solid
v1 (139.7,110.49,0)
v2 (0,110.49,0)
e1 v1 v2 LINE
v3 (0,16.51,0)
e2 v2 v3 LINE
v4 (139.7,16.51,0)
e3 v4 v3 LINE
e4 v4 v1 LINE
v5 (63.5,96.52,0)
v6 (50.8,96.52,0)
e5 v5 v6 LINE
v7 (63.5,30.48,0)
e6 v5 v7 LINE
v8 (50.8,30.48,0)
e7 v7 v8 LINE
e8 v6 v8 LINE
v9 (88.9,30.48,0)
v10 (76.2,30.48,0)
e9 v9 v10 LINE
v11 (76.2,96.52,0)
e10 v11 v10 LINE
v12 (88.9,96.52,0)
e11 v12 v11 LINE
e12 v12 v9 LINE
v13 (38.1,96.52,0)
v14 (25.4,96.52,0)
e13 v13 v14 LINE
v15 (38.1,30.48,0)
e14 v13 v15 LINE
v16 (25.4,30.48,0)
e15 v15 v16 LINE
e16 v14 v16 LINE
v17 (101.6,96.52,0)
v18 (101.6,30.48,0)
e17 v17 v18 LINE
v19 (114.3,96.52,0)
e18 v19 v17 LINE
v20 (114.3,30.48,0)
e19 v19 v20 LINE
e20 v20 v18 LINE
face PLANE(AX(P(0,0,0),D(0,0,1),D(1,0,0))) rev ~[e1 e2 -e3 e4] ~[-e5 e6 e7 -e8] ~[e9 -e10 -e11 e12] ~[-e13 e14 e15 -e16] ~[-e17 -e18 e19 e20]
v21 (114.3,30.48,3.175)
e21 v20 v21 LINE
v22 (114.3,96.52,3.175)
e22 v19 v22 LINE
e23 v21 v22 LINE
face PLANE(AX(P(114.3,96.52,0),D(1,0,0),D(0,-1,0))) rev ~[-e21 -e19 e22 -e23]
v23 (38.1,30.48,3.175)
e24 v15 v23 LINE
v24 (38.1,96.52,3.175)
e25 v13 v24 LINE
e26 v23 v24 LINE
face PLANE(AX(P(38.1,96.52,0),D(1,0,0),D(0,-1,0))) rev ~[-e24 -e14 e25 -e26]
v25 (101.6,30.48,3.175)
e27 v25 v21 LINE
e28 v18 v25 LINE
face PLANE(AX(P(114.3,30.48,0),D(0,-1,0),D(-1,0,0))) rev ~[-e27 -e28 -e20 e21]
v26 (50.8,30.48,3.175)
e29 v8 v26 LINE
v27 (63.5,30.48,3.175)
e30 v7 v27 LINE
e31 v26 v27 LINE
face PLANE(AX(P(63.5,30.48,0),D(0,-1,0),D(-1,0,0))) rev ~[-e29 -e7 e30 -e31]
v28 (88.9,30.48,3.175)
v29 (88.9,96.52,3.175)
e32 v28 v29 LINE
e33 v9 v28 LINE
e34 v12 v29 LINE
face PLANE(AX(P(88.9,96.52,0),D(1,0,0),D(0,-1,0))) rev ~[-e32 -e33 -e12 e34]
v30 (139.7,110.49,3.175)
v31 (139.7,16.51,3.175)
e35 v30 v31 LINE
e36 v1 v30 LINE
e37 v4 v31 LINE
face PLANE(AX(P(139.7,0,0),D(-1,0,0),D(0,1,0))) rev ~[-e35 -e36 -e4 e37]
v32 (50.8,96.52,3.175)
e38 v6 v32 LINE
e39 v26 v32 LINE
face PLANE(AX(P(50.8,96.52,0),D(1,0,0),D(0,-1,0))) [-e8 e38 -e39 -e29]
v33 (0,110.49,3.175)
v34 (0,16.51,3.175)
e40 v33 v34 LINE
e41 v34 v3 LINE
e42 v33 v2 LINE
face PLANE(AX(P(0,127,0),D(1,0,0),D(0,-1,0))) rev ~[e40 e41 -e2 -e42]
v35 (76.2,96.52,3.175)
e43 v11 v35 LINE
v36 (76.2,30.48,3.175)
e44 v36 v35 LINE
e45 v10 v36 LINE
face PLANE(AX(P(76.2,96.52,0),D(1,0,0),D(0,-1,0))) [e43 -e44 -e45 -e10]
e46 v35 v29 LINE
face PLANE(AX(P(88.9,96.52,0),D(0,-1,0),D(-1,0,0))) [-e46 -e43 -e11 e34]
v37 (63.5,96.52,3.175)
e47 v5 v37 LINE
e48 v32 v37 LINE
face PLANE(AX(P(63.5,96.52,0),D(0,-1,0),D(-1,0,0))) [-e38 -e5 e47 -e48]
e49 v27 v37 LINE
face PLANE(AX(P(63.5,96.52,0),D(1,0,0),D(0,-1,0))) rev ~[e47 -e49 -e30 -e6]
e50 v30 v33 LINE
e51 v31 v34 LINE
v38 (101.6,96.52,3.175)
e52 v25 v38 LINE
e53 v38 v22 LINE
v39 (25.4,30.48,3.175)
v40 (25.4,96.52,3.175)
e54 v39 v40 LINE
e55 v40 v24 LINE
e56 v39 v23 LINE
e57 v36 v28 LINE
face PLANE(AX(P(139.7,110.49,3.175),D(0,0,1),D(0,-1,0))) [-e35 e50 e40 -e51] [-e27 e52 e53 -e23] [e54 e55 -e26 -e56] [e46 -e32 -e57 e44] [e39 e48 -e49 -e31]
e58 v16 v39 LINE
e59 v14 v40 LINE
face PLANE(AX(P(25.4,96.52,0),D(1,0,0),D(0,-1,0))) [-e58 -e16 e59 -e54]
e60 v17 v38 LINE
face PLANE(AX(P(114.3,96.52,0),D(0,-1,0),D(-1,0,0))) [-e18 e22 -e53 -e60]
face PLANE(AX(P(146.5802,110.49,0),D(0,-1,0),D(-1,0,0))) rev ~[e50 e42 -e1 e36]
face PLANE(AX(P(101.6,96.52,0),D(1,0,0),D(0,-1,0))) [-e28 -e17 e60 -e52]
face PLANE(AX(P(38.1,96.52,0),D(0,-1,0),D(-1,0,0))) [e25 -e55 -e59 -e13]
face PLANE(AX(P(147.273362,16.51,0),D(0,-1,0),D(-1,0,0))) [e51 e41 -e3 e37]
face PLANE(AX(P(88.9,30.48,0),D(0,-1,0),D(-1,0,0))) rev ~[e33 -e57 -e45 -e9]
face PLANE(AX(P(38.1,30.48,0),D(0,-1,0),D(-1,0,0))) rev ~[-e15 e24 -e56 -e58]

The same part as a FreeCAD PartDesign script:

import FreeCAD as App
import Part
import Sketcher
from FreeCAD import Vector
Q = App.Units.Quantity

doc = App.newDocument("Part")
body = doc.addObject("PartDesign::Body", "Body")

# Sketch on XY plane
sketch1 = doc.addObject("Sketcher::SketchObject", "Sketch")
body.addObject(sketch1)
sketch1.AttachmentSupport = (doc.XY_Plane, [""])
sketch1.MapMode = "FlatFace"
sketch1.addGeometry(Part.LineSegment(Vector(0, 127, 0), Vector(0, 0, 0)), False)
sketch1.addGeometry(Part.LineSegment(Vector(0, 0, 0), Vector(140, 0, 0)), False)
sketch1.addGeometry(Part.LineSegment(Vector(140, 0, 0), Vector(140, 127, 0)), False)
sketch1.addGeometry(Part.LineSegment(Vector(140, 127, 0), Vector(0, 127, 0)), False)
sketch1.addConstraint(Sketcher.Constraint("Coincident", 0, 2, 1, 1))
sketch1.addConstraint(Sketcher.Constraint("Coincident", 1, 2, 2, 1))
sketch1.addConstraint(Sketcher.Constraint("Coincident", 2, 2, 3, 1))
sketch1.addConstraint(Sketcher.Constraint("Coincident", 3, 2, 0, 1))
sketch1.addConstraint(Sketcher.Constraint("Vertical", 0))
sketch1.addConstraint(Sketcher.Constraint("Horizontal", 1))
sketch1.addConstraint(Sketcher.Constraint("Vertical", 2))
sketch1.addConstraint(Sketcher.Constraint("Horizontal", 3))
sketch1.addConstraint(Sketcher.Constraint("Coincident", 0, 2, -1, 1))
sketch1.addConstraint(Sketcher.Constraint("DistanceY", 0, 2, 0, 1, Q("5 in")))
sketch1.addConstraint(Sketcher.Constraint("DistanceX", 1, 1, 1, 2, Q("5.5 in")))
pad1 = doc.addObject("PartDesign::Pad", "Pad")
body.addObject(pad1)
pad1.Profile = sketch1
pad1.Length = Q("0.125 in")

# Sketch on XY plane
sketch2 = doc.addObject("Sketcher::SketchObject", "Sketch001")
body.addObject(sketch2)
sketch2.AttachmentSupport = (doc.XY_Plane, [""])
sketch2.MapMode = "FlatFace"
sketch2.AttachmentOffset = App.Placement(Vector(0, 0, 0.125 * 25.4), App.Rotation())
sketch2.addGeometry(Part.LineSegment(Vector(0, 0, 0), Vector(140, 0, 0)), False)
sketch2.addGeometry(Part.LineSegment(Vector(140, 0, 0), Vector(140, 127, 0)), False)
sketch2.addGeometry(Part.LineSegment(Vector(140, 127, 0), Vector(0, 127, 0)), False)
sketch2.addGeometry(Part.LineSegment(Vector(0, 127, 0), Vector(0, 0, 0)), False)
sketch2.addGeometry(Part.LineSegment(Vector(19, 19, 0), Vector(19, 108, 0)), False)
sketch2.addGeometry(Part.LineSegment(Vector(19, 108, 0), Vector(121, 108, 0)), False)
sketch2.addGeometry(Part.LineSegment(Vector(121, 108, 0), Vector(121, 19, 0)), False)
sketch2.addGeometry(Part.LineSegment(Vector(121, 19, 0), Vector(19, 19, 0)), False)
sketch2.addConstraint(Sketcher.Constraint("Coincident", 0, 2, 1, 1))
sketch2.addConstraint(Sketcher.Constraint("Coincident", 1, 2, 2, 1))
sketch2.addConstraint(Sketcher.Constraint("Coincident", 2, 2, 3, 1))
sketch2.addConstraint(Sketcher.Constraint("Coincident", 3, 2, 0, 1))
sketch2.addConstraint(Sketcher.Constraint("Coincident", 4, 2, 5, 1))
sketch2.addConstraint(Sketcher.Constraint("Coincident", 5, 2, 6, 1))
sketch2.addConstraint(Sketcher.Constraint("Coincident", 6, 2, 7, 1))
sketch2.addConstraint(Sketcher.Constraint("Coincident", 7, 2, 4, 1))
sketch2.addConstraint(Sketcher.Constraint("Horizontal", 0))
sketch2.addConstraint(Sketcher.Constraint("Vertical", 1))
sketch2.addConstraint(Sketcher.Constraint("Horizontal", 2))
sketch2.addConstraint(Sketcher.Constraint("Vertical", 3))
sketch2.addConstraint(Sketcher.Constraint("Vertical", 4))
sketch2.addConstraint(Sketcher.Constraint("Horizontal", 5))
sketch2.addConstraint(Sketcher.Constraint("Vertical", 6))
sketch2.addConstraint(Sketcher.Constraint("Horizontal", 7))
sketch2.addConstraint(Sketcher.Constraint("Coincident", 3, 2, -1, 1))
sketch2.addConstraint(Sketcher.Constraint("DistanceX", 5, 1, 5, 2, Q("4 in")))
sketch2.addConstraint(Sketcher.Constraint("DistanceY", 1, 1, 1, 2, Q("5 in")))
sketch2.addConstraint(Sketcher.Constraint("DistanceX", -1, 1, 4, 2, Q("0.75 in")))
sketch2.addConstraint(Sketcher.Constraint("DistanceY", -1, 1, 6, 2, Q("0.75 in")))
sketch2.addConstraint(Sketcher.Constraint("DistanceY", 4, 2, 2, 2, Q("0.75 in")))
sketch2.addConstraint(Sketcher.Constraint("DistanceX", 5, 2, 1, 2, Q("0.75 in")))
pad2 = doc.addObject("PartDesign::Pad", "Pad001")
body.addObject(pad2)
pad2.Profile = sketch2
pad2.Length = Q("0.125 in")

# Sketch on XY plane
sketch3 = doc.addObject("Sketcher::SketchObject", "Sketch002")
body.addObject(sketch3)
sketch3.AttachmentSupport = (doc.XY_Plane, [""])
sketch3.MapMode = "FlatFace"
sketch3.addGeometry(Part.LineSegment(Vector(38, 30, 0), Vector(25, 30, 0)), False)
sketch3.addGeometry(Part.LineSegment(Vector(25, 30, 0), Vector(25, 97, 0)), False)
sketch3.addGeometry(Part.LineSegment(Vector(25, 97, 0), Vector(38, 97, 0)), False)
sketch3.addGeometry(Part.LineSegment(Vector(38, 97, 0), Vector(38, 30, 0)), False)
sketch3.addGeometry(Part.LineSegment(Vector(64, 30, 0), Vector(51, 30, 0)), False)
sketch3.addGeometry(Part.LineSegment(Vector(51, 30, 0), Vector(51, 97, 0)), False)
sketch3.addGeometry(Part.LineSegment(Vector(51, 97, 0), Vector(64, 97, 0)), False)
sketch3.addGeometry(Part.LineSegment(Vector(64, 97, 0), Vector(64, 30, 0)), False)
sketch3.addGeometry(Part.LineSegment(Vector(89, 30, 0), Vector(76, 30, 0)), False)
sketch3.addGeometry(Part.LineSegment(Vector(76, 30, 0), Vector(76, 97, 0)), False)
sketch3.addGeometry(Part.LineSegment(Vector(76, 97, 0), Vector(89, 97, 0)), False)
sketch3.addGeometry(Part.LineSegment(Vector(89, 97, 0), Vector(89, 30, 0)), False)
sketch3.addGeometry(Part.LineSegment(Vector(114, 30, 0), Vector(102, 30, 0)), False)
sketch3.addGeometry(Part.LineSegment(Vector(102, 30, 0), Vector(102, 97, 0)), False)
sketch3.addGeometry(Part.LineSegment(Vector(102, 97, 0), Vector(114, 97, 0)), False)
sketch3.addGeometry(Part.LineSegment(Vector(114, 97, 0), Vector(114, 30, 0)), False)
sketch3.addConstraint(Sketcher.Constraint("Coincident", 0, 2, 1, 1))
sketch3.addConstraint(Sketcher.Constraint("Coincident", 1, 2, 2, 1))
sketch3.addConstraint(Sketcher.Constraint("Coincident", 2, 2, 3, 1))
sketch3.addConstraint(Sketcher.Constraint("Coincident", 3, 2, 0, 1))
sketch3.addConstraint(Sketcher.Constraint("Coincident", 4, 2, 5, 1))
sketch3.addConstraint(Sketcher.Constraint("Coincident", 5, 2, 6, 1))
sketch3.addConstraint(Sketcher.Constraint("Coincident", 6, 2, 7, 1))
sketch3.addConstraint(Sketcher.Constraint("Coincident", 7, 2, 4, 1))
sketch3.addConstraint(Sketcher.Constraint("Coincident", 8, 2, 9, 1))
sketch3.addConstraint(Sketcher.Constraint("Coincident", 9, 2, 10, 1))
sketch3.addConstraint(Sketcher.Constraint("Coincident", 10, 2, 11, 1))
sketch3.addConstraint(Sketcher.Constraint("Coincident", 11, 2, 8, 1))
sketch3.addConstraint(Sketcher.Constraint("Coincident", 12, 2, 13, 1))
sketch3.addConstraint(Sketcher.Constraint("Coincident", 13, 2, 14, 1))
sketch3.addConstraint(Sketcher.Constraint("Coincident", 14, 2, 15, 1))
sketch3.addConstraint(Sketcher.Constraint("Coincident", 15, 2, 12, 1))
sketch3.addConstraint(Sketcher.Constraint("Horizontal", 0))
sketch3.addConstraint(Sketcher.Constraint("Vertical", 1))
sketch3.addConstraint(Sketcher.Constraint("Horizontal", 2))
sketch3.addConstraint(Sketcher.Constraint("Vertical", 3))
sketch3.addConstraint(Sketcher.Constraint("Horizontal", 4))
sketch3.addConstraint(Sketcher.Constraint("Vertical", 5))
sketch3.addConstraint(Sketcher.Constraint("Horizontal", 6))
sketch3.addConstraint(Sketcher.Constraint("Vertical", 7))
sketch3.addConstraint(Sketcher.Constraint("Horizontal", 8))
sketch3.addConstraint(Sketcher.Constraint("Vertical", 9))
sketch3.addConstraint(Sketcher.Constraint("Horizontal", 10))
sketch3.addConstraint(Sketcher.Constraint("Vertical", 11))
sketch3.addConstraint(Sketcher.Constraint("Horizontal", 12))
sketch3.addConstraint(Sketcher.Constraint("Vertical", 13))
sketch3.addConstraint(Sketcher.Constraint("Horizontal", 14))
sketch3.addConstraint(Sketcher.Constraint("Vertical", 15))
sketch3.addConstraint(Sketcher.Constraint("Horizontal", 3, 2, 4, 2))
sketch3.addConstraint(Sketcher.Constraint("Horizontal", 2, 2, 5, 2))
sketch3.addConstraint(Sketcher.Constraint("Horizontal", 7, 2, 8, 2))
sketch3.addConstraint(Sketcher.Constraint("Horizontal", 6, 2, 9, 2))
sketch3.addConstraint(Sketcher.Constraint("Horizontal", 11, 2, 12, 2))
sketch3.addConstraint(Sketcher.Constraint("Horizontal", 10, 2, 13, 2))
sketch3.addConstraint(Sketcher.Constraint("Equal", 2, 4))
sketch3.addConstraint(Sketcher.Constraint("Equal", 6, 8))
sketch3.addConstraint(Sketcher.Constraint("Equal", 10, 12))
sketch3.addConstraint(Sketcher.Constraint("DistanceX", 0, 2, 0, 1, Q("0.5 in")))
sketch3.addConstraint(Sketcher.Constraint("DistanceX", 3, 2, 4, 2, Q("0.5 in")))
sketch3.addConstraint(Sketcher.Constraint("DistanceX", 7, 2, 8, 2, Q("0.5 in")))
sketch3.addConstraint(Sketcher.Constraint("DistanceX", 11, 2, 12, 2, Q("0.5 in")))
sketch3.addConstraint(Sketcher.Constraint("DistanceY", 1, 1, 1, 2, Q("2.6 in")))
sketch3.addConstraint(Sketcher.Constraint("DistanceX", -1, 1, 0, 2, Q("1 in")))
sketch3.addConstraint(Sketcher.Constraint("DistanceY", -1, 1, 0, 2, Q("1.2 in")))
pocket1 = doc.addObject("PartDesign::Pocket", "Pocket")
body.addObject(pocket1)
pocket1.Profile = sketch3
pocket1.Type = "ThroughAll"
pocket1.Reversed = True

# Sketch on XY plane
sketch4 = doc.addObject("Sketcher::SketchObject", "Sketch003")
body.addObject(sketch4)
sketch4.AttachmentSupport = (doc.XY_Plane, [""])
sketch4.MapMode = "FlatFace"
sketch4.addGeometry(Part.LineSegment(Vector(-14, 127, 0), Vector(147, 127, 0)), False)
sketch4.addGeometry(Part.LineSegment(Vector(147, 127, 0), Vector(147, 110, 0)), False)
sketch4.addGeometry(Part.LineSegment(Vector(147, 110, 0), Vector(-12, 110, 0)), False)
sketch4.addGeometry(Part.LineSegment(Vector(-12, 110, 0), Vector(-14, 127, 0)), False)
sketch4.addGeometry(Part.LineSegment(Vector(146, 0, 0), Vector(-12, 0, 0)), False)
sketch4.addGeometry(Part.LineSegment(Vector(-12, 0, 0), Vector(-10, 17, 0)), False)
sketch4.addGeometry(Part.LineSegment(Vector(-10, 17, 0), Vector(147, 17, 0)), False)
sketch4.addGeometry(Part.LineSegment(Vector(147, 17, 0), Vector(146, 0, 0)), False)
sketch4.addConstraint(Sketcher.Constraint("Coincident", 0, 2, 1, 1))
sketch4.addConstraint(Sketcher.Constraint("Coincident", 1, 2, 2, 1))
sketch4.addConstraint(Sketcher.Constraint("Coincident", 2, 2, 3, 1))
sketch4.addConstraint(Sketcher.Constraint("Coincident", 3, 2, 0, 1))
sketch4.addConstraint(Sketcher.Constraint("Coincident", 4, 2, 5, 1))
sketch4.addConstraint(Sketcher.Constraint("Coincident", 5, 2, 6, 1))
sketch4.addConstraint(Sketcher.Constraint("Coincident", 6, 2, 7, 1))
sketch4.addConstraint(Sketcher.Constraint("Coincident", 7, 2, 4, 1))
sketch4.addConstraint(Sketcher.Constraint("Horizontal", 0))
sketch4.addConstraint(Sketcher.Constraint("Vertical", 1))
sketch4.addConstraint(Sketcher.Constraint("Horizontal", 2))
sketch4.addConstraint(Sketcher.Constraint("Horizontal", 4))
sketch4.addConstraint(Sketcher.Constraint("Horizontal", 6))
sketch4.addConstraint(Sketcher.Constraint("PointOnObject", 4, 2, -1))
sketch4.addConstraint(Sketcher.Constraint("DistanceY", -1, 1, 0, 2, Q("5 in")))
sketch4.addConstraint(Sketcher.Constraint("DistanceY", 1, 2, 1, 1, Q("0.65 in")))
sketch4.addConstraint(Sketcher.Constraint("DistanceY", -1, 1, 5, 2, Q("0.65 in")))
sketch4.addConstraint(Sketcher.Constraint("DistanceX", 4, 2, -1, 1, Q("0.49 in")))
sketch4.addConstraint(Sketcher.Constraint("Angle", 3, Q("96.671 deg")))
sketch4.addConstraint(Sketcher.Constraint("DistanceX", 2, 2, 2, 1, Q("6.2538 in")))
sketch4.addConstraint(Sketcher.Constraint("DistanceX", 6, 1, 6, 2, Q("6.1768 in")))
sketch4.addConstraint(Sketcher.Constraint("DistanceX", 4, 2, 4, 1, 158.3145))
sketch4.addConstraint(Sketcher.Constraint("DistanceX", 4, 2, 2, 2, Q("0.0071 in")))
sketch4.addConstraint(Sketcher.Constraint("DistanceX", 3, 2, 5, 2, Q("0.1803 in")))
pocket2 = doc.addObject("PartDesign::Pocket", "Pocket001")
body.addObject(pocket2)
pocket2.Profile = sketch4
pocket2.Type = "ThroughAll"
pocket2.Reversed = True

# Sketch on YZ plane
sketch5 = doc.addObject("Sketcher::SketchObject", "Sketch004")
body.addObject(sketch5)
sketch5.AttachmentSupport = (doc.YZ_Plane, [""])
sketch5.MapMode = "FlatFace"
sketch5.AttachmentOffset = App.Placement(Vector(0, 0, 5.5 * 25.4), App.Rotation())
sketch5.addGeometry(Part.LineSegment(Vector(110.5, 6.3, 0), Vector(-1159.5, 6.3, 0)), False)
sketch5.addGeometry(Part.LineSegment(Vector(-1159.5, 6.3, 0), Vector(-1159.5, 3.2, 0)), False)
sketch5.addGeometry(Part.LineSegment(Vector(-1159.5, 3.2, 0), Vector(110.5, 3.2, 0)), False)
sketch5.addGeometry(Part.LineSegment(Vector(110.5, 3.2, 0), Vector(110.5, 6.3, 0)), False)
sketch5.addConstraint(Sketcher.Constraint("Coincident", 0, 2, 1, 1))
sketch5.addConstraint(Sketcher.Constraint("Coincident", 1, 2, 2, 1))
sketch5.addConstraint(Sketcher.Constraint("Coincident", 2, 2, 3, 1))
sketch5.addConstraint(Sketcher.Constraint("Coincident", 3, 2, 0, 1))
sketch5.addConstraint(Sketcher.Constraint("Horizontal", 0))
sketch5.addConstraint(Sketcher.Constraint("Vertical", 1))
sketch5.addConstraint(Sketcher.Constraint("Horizontal", 2))
sketch5.addConstraint(Sketcher.Constraint("Vertical", 3))
sketch5.addConstraint(Sketcher.Constraint("DistanceX", 0, 2, 0, 1, Q("50 in")))
sketch5.addConstraint(Sketcher.Constraint("DistanceY", 1, 2, 1, 1, Q("0.125 in")))
sketch5.addConstraint(Sketcher.Constraint("DistanceY", -1, 1, 1, 2, Q("0.125 in")))
sketch5.addConstraint(Sketcher.Constraint("DistanceX", 0, 2, -1, 1, Q("45.65 in")))
pocket3 = doc.addObject("PartDesign::Pocket", "Pocket002")
body.addObject(pocket3)
pocket3.Profile = sketch5
pocket3.Type = "ThroughAll"

doc.recompute()
